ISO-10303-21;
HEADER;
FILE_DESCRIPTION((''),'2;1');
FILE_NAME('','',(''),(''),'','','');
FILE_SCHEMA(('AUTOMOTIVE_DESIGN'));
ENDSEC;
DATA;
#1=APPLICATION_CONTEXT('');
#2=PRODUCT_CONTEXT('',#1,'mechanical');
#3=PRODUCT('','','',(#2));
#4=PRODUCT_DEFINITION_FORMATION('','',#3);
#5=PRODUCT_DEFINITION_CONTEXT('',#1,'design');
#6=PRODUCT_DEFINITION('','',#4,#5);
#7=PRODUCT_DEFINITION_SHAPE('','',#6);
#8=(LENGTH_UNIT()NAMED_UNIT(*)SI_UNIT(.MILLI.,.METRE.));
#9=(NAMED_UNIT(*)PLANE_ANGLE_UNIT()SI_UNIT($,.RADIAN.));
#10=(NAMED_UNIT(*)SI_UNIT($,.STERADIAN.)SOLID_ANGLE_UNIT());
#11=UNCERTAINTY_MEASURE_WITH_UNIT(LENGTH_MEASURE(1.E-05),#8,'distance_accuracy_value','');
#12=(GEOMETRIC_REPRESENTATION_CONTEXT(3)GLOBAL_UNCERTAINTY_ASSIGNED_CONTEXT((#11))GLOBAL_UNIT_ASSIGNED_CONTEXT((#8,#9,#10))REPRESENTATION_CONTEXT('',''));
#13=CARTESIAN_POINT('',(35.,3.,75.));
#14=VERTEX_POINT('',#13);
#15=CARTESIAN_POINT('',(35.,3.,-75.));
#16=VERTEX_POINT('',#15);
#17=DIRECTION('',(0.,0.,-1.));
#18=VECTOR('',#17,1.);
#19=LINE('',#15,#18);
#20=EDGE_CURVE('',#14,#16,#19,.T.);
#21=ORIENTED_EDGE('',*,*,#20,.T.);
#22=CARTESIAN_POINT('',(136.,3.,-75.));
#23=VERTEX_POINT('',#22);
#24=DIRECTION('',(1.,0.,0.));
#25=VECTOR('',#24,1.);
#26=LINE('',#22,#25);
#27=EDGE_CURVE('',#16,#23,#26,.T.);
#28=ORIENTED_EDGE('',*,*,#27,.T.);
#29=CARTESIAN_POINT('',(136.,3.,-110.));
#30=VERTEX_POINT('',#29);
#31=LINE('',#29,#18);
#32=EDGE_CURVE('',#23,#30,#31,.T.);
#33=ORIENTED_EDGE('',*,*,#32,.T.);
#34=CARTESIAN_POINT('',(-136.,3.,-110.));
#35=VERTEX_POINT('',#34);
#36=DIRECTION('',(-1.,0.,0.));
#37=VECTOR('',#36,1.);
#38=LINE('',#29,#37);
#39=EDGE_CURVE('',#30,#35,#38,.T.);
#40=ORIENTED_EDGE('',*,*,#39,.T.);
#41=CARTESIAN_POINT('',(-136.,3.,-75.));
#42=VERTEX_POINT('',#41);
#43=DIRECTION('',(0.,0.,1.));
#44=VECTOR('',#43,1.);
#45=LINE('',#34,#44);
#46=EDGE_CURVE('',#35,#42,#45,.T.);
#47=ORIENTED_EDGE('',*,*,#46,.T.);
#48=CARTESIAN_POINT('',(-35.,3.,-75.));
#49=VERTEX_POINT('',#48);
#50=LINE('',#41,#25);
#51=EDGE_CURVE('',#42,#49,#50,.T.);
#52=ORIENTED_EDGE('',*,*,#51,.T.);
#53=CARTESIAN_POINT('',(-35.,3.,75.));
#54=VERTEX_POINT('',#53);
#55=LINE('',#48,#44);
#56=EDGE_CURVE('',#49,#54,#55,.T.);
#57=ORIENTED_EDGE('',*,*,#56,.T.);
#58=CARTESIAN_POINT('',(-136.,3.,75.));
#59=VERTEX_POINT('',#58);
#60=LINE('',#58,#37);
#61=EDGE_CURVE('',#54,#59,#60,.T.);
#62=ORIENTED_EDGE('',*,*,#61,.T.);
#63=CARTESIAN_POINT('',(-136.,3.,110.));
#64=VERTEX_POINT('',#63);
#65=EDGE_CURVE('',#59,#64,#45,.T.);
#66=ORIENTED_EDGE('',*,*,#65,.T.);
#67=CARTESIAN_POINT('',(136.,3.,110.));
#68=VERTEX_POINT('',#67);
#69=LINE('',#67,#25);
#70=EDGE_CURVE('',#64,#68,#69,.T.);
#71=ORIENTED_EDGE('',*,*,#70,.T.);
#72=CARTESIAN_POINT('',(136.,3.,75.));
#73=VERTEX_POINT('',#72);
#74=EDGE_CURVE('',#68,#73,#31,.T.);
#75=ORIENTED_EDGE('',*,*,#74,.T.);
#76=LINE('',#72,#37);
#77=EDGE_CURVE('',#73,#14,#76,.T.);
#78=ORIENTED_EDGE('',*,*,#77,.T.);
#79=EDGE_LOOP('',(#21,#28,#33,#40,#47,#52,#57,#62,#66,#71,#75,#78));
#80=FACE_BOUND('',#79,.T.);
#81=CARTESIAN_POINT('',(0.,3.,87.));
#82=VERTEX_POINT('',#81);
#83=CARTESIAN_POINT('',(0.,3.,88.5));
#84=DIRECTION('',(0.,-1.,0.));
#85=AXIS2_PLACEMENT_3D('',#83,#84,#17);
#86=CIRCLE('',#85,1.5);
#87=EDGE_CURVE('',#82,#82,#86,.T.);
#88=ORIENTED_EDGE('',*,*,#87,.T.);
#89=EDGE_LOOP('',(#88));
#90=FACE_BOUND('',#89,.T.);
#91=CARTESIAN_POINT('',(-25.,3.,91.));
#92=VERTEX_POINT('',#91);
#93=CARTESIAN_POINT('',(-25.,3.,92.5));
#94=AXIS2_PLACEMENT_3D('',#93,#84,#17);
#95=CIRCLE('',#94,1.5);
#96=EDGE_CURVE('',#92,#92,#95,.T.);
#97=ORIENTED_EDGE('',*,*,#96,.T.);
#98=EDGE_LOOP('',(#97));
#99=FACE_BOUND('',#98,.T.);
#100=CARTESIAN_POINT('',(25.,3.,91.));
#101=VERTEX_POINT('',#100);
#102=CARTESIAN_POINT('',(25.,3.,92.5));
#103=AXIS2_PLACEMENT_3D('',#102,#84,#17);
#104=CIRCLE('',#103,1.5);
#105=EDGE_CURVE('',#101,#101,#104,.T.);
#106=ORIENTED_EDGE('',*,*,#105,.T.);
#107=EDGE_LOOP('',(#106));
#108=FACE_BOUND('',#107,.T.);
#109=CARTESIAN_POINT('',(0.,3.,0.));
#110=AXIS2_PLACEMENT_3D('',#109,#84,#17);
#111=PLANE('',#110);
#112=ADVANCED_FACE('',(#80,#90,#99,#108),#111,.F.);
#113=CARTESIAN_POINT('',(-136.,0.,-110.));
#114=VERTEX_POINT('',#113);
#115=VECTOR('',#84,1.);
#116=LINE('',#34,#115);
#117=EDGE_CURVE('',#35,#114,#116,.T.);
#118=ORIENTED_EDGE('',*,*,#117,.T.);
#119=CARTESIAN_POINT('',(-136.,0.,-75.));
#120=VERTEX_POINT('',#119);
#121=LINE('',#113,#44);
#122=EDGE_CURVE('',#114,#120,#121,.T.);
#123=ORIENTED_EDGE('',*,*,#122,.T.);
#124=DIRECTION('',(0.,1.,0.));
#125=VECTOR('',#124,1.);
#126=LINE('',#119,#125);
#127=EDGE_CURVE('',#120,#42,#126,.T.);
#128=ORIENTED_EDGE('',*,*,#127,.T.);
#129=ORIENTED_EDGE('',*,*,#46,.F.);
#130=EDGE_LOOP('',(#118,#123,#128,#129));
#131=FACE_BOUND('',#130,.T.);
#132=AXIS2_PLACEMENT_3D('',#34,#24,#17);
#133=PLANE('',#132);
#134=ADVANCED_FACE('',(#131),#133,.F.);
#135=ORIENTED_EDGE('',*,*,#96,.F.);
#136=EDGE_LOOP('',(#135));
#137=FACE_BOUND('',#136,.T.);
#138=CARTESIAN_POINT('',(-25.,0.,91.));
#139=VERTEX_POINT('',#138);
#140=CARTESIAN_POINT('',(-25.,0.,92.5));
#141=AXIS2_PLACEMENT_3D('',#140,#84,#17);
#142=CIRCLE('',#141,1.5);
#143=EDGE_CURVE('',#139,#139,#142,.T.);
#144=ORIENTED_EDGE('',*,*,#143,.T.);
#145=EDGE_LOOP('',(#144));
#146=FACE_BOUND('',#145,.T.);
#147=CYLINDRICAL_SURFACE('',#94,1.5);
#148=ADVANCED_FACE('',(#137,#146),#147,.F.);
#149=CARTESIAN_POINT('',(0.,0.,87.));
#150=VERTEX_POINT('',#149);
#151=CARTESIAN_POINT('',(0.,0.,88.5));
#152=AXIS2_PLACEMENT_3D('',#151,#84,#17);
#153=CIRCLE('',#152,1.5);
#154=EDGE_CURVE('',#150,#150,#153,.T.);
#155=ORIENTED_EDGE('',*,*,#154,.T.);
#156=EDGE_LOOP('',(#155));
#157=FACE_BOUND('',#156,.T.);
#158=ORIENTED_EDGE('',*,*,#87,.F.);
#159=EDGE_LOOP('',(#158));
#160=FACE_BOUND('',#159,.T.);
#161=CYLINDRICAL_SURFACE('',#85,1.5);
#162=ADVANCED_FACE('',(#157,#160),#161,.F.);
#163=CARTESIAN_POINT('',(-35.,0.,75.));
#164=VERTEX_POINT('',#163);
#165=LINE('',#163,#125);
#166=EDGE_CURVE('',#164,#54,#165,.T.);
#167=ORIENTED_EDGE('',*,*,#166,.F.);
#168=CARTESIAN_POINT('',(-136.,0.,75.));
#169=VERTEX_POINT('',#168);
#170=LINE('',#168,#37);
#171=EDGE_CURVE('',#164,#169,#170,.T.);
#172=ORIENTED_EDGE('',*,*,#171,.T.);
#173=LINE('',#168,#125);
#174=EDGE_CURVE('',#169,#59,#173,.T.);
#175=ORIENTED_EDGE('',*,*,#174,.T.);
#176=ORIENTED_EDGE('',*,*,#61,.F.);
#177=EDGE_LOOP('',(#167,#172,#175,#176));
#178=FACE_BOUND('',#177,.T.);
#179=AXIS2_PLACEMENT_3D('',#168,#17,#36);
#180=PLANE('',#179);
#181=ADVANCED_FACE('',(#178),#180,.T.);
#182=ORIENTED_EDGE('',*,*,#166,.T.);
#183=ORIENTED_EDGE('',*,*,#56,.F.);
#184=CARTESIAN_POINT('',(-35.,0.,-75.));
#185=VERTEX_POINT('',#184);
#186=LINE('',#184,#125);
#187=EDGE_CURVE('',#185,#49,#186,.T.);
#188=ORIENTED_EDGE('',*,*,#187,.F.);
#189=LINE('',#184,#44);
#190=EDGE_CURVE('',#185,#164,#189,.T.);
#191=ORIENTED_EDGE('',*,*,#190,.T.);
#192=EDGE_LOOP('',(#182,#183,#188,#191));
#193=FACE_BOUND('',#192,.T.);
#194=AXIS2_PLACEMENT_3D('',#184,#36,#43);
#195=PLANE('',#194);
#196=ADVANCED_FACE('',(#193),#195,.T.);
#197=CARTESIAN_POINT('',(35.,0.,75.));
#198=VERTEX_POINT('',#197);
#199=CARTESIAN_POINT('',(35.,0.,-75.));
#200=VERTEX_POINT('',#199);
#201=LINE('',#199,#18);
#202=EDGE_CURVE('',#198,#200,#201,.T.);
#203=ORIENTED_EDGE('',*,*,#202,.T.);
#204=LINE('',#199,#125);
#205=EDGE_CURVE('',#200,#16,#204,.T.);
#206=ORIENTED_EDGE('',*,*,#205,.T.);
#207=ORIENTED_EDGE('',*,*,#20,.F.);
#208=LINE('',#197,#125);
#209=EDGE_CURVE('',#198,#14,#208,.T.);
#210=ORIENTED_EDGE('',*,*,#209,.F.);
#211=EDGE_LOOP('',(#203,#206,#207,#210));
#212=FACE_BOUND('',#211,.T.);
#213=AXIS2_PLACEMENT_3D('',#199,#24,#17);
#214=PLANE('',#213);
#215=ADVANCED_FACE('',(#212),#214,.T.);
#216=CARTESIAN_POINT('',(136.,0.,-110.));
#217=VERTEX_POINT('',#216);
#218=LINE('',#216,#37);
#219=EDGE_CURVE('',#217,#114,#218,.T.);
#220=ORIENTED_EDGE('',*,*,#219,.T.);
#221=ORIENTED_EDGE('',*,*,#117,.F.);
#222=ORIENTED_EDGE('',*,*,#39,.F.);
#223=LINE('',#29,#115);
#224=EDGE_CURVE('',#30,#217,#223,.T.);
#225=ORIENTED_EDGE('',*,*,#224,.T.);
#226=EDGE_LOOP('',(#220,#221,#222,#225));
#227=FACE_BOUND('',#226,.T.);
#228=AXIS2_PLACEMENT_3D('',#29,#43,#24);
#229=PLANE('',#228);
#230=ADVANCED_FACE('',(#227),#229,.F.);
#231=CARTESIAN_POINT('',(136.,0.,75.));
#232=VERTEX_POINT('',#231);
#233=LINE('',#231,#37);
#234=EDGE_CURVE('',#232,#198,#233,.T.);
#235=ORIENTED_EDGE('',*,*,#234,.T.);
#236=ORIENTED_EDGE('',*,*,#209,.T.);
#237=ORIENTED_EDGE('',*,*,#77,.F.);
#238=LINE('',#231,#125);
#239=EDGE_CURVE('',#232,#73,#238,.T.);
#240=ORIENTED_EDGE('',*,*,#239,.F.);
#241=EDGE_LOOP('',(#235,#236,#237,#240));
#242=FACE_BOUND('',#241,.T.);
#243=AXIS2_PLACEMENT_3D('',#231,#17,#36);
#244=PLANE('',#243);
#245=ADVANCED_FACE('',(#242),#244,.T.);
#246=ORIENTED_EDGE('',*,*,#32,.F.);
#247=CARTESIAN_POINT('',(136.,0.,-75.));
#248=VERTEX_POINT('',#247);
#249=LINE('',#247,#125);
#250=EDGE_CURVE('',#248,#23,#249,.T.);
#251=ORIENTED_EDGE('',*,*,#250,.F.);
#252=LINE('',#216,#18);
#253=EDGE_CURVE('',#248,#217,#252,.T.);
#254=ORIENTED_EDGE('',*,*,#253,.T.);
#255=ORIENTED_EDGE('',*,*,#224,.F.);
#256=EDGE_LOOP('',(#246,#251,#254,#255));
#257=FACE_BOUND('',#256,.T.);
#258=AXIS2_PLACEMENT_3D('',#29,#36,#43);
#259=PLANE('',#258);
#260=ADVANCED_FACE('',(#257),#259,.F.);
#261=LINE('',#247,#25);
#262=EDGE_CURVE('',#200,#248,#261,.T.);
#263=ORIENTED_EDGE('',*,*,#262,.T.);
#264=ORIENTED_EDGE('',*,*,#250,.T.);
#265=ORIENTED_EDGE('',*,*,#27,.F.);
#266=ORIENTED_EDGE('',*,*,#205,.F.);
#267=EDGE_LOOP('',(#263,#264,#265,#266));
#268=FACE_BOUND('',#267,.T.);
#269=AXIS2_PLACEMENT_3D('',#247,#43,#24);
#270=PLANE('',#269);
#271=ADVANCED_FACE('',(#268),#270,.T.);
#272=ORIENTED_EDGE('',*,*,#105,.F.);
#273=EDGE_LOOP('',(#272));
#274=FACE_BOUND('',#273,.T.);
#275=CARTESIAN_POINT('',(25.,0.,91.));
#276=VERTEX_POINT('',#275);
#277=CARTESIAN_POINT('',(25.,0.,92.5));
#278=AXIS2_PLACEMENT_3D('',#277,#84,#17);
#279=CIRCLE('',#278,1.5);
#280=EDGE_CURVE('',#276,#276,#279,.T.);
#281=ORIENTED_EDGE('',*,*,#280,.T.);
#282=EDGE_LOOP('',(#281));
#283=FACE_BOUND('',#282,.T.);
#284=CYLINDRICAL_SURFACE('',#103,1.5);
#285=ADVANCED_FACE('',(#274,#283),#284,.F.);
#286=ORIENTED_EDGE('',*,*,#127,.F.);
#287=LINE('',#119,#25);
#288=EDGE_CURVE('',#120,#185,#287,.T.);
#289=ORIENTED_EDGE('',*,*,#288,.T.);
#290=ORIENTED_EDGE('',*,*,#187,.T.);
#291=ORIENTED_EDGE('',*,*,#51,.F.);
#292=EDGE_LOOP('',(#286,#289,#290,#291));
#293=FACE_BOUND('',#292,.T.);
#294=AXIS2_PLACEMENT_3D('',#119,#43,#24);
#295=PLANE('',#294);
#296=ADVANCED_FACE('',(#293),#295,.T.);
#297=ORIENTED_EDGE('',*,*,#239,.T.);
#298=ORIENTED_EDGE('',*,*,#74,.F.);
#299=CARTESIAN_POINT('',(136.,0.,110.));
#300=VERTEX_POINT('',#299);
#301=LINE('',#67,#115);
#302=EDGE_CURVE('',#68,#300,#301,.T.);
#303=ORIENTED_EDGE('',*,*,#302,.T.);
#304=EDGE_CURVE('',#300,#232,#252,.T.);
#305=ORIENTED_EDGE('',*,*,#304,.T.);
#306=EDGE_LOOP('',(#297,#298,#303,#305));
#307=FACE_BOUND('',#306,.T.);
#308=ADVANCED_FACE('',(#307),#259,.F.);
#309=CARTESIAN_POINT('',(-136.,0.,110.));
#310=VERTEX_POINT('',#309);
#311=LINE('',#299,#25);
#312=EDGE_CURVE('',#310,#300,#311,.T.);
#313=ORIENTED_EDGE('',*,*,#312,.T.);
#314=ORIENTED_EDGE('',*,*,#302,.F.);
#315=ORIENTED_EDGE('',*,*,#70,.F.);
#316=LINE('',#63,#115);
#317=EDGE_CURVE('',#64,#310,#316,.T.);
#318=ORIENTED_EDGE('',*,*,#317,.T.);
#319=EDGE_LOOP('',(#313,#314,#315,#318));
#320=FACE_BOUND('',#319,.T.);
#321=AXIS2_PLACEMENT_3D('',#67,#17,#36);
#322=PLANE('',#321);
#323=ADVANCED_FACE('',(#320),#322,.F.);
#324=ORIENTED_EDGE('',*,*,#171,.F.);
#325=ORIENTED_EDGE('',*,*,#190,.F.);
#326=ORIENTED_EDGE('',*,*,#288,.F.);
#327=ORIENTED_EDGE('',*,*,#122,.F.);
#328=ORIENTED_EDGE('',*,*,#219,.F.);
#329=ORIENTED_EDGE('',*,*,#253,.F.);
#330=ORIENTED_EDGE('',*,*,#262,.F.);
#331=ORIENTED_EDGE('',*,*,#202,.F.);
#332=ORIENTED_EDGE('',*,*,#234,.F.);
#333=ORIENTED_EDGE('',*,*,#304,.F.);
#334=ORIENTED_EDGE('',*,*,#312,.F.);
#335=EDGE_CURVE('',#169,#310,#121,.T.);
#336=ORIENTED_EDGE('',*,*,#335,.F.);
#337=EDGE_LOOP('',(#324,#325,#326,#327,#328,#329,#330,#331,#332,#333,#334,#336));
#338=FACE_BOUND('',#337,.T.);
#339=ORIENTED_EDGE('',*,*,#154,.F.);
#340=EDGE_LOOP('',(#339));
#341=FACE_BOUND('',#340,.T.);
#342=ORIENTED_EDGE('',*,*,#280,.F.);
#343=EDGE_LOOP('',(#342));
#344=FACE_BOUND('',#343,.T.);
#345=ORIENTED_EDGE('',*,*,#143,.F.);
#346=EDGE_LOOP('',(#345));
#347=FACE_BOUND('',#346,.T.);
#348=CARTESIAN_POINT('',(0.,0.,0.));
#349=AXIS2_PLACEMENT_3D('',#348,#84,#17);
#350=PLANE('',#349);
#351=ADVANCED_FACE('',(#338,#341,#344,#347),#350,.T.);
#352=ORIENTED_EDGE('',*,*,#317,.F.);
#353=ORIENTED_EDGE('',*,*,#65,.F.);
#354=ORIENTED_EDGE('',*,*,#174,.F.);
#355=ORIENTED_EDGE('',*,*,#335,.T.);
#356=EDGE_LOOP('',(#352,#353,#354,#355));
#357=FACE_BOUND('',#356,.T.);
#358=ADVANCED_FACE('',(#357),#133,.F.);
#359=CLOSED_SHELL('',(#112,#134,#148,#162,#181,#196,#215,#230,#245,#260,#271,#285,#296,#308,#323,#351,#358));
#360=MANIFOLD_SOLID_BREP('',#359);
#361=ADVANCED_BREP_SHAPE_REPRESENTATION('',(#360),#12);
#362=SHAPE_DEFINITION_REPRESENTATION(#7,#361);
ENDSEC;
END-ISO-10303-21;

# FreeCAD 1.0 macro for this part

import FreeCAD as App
import Part
import Sketcher
from FreeCAD import Vector
Q = App.Units.Quantity

doc = App.newDocument("Part")
body = doc.addObject("PartDesign::Body", "Body")

sketch1 = body.newObject("Sketcher::SketchObject", "Sketch")
sketch1.AttachmentSupport = (doc.getObject("XZ_Plane"), [""])
sketch1.MapMode = "FlatFace"
sketch1.addGeometry(Part.LineSegment(Vector(-136, -110, 0), Vector(-136, 110, 0)), False)
sketch1.addGeometry(Part.LineSegment(Vector(-136, 110, 0), Vector(136, 110, 0)), False)
sketch1.addGeometry(Part.LineSegment(Vector(136, 110, 0), Vector(136, -110, 0)), False)
sketch1.addGeometry(Part.LineSegment(Vector(136, -110, 0), Vector(-136, -110, 0)), False)
sketch1.addConstraint(Sketcher.Constraint("Coincident", 0, 2, 1, 1))
sketch1.addConstraint(Sketcher.Constraint("Coincident", 1, 2, 2, 1))
sketch1.addConstraint(Sketcher.Constraint("Coincident", 2, 2, 3, 1))
sketch1.addConstraint(Sketcher.Constraint("Coincident", 3, 2, 0, 1))
sketch1.addConstraint(Sketcher.Constraint("Vertical", 0))
sketch1.addConstraint(Sketcher.Constraint("Horizontal", 1))
sketch1.addConstraint(Sketcher.Constraint("Vertical", 2))
sketch1.addConstraint(Sketcher.Constraint("Horizontal", 3))
sketch1.addConstraint(Sketcher.Constraint("Symmetric", 0, 2, 2, 2, -1, 1))
sketch1.addConstraint(Sketcher.Constraint("DistanceX", 1, 1, 1, 2, Q("272 mm")))
sketch1.addConstraint(Sketcher.Constraint("DistanceY", 0, 1, 0, 2, Q("220 mm")))
pad1 = body.newObject("PartDesign::Pad", "Pad")
pad1.Profile = sketch1
pad1.Length = 3
pad1.Reversed = True

sketch2 = body.newObject("Sketcher::SketchObject", "Sketch001")
sketch2.AttachmentSupport = (doc.getObject("XZ_Plane"), [""])
sketch2.MapMode = "FlatFace"
sketch2.AttachmentOffset = App.Placement(Vector(0, 0, -3), App.Rotation())
sketch2.addGeometry(Part.LineSegment(Vector(-172, -146, 0), Vector(-172, 146, 0)), False)
sketch2.addGeometry(Part.LineSegment(Vector(-172, 146, 0), Vector(172, 146, 0)), False)
sketch2.addGeometry(Part.LineSegment(Vector(172, 146, 0), Vector(172, -146, 0)), False)
sketch2.addGeometry(Part.LineSegment(Vector(172, -146, 0), Vector(-172, -146, 0)), False)
sketch2.addGeometry(Part.LineSegment(Vector(-136, -75, 0), Vector(-136, -110, 0)), False)
sketch2.addGeometry(Part.LineSegment(Vector(-136, -110, 0), Vector(136, -110, 0)), False)
sketch2.addGeometry(Part.LineSegment(Vector(136, -110, 0), Vector(136, -75, 0)), False)
sketch2.addGeometry(Part.LineSegment(Vector(136, -75, 0), Vector(35, -75, 0)), False)
sketch2.addGeometry(Part.LineSegment(Vector(35, -75, 0), Vector(35, 75, 0)), False)
sketch2.addGeometry(Part.LineSegment(Vector(35, 75, 0), Vector(136, 75, 0)), False)
sketch2.addGeometry(Part.LineSegment(Vector(136, 75, 0), Vector(136, 110, 0)), False)
sketch2.addGeometry(Part.LineSegment(Vector(136, 110, 0), Vector(-136, 110, 0)), False)
sketch2.addGeometry(Part.LineSegment(Vector(-136, 110, 0), Vector(-136, 75, 0)), False)
sketch2.addGeometry(Part.LineSegment(Vector(-136, 75, 0), Vector(-35, 75, 0)), False)
sketch2.addGeometry(Part.LineSegment(Vector(-35, 75, 0), Vector(-35, -75, 0)), False)
sketch2.addGeometry(Part.LineSegment(Vector(-35, -75, 0), Vector(-136, -75, 0)), False)
sketch2.addConstraint(Sketcher.Constraint("Coincident", 0, 2, 1, 1))
sketch2.addConstraint(Sketcher.Constraint("Coincident", 1, 2, 2, 1))
sketch2.addConstraint(Sketcher.Constraint("Coincident", 2, 2, 3, 1))
sketch2.addConstraint(Sketcher.Constraint("Coincident", 3, 2, 0, 1))
sketch2.addConstraint(Sketcher.Constraint("Coincident", 4, 2, 5, 1))
sketch2.addConstraint(Sketcher.Constraint("Coincident", 5, 2, 6, 1))
sketch2.addConstraint(Sketcher.Constraint("Coincident", 6, 2, 7, 1))
sketch2.addConstraint(Sketcher.Constraint("Coincident", 7, 2, 8, 1))
sketch2.addConstraint(Sketcher.Constraint("Coincident", 8, 2, 9, 1))
sketch2.addConstraint(Sketcher.Constraint("Coincident", 9, 2, 10, 1))
sketch2.addConstraint(Sketcher.Constraint("Coincident", 10, 2, 11, 1))
sketch2.addConstraint(Sketcher.Constraint("Coincident", 11, 2, 12, 1))
sketch2.addConstraint(Sketcher.Constraint("Coincident", 12, 2, 13, 1))
sketch2.addConstraint(Sketcher.Constraint("Coincident", 13, 2, 14, 1))
sketch2.addConstraint(Sketcher.Constraint("Coincident", 14, 2, 15, 1))
sketch2.addConstraint(Sketcher.Constraint("Coincident", 15, 2, 4, 1))
sketch2.addConstraint(Sketcher.Constraint("Vertical", 0))
sketch2.addConstraint(Sketcher.Constraint("Horizontal", 1))
sketch2.addConstraint(Sketcher.Constraint("Vertical", 2))
sketch2.addConstraint(Sketcher.Constraint("Horizontal", 3))
sketch2.addConstraint(Sketcher.Constraint("Vertical", 4))
sketch2.addConstraint(Sketcher.Constraint("Horizontal", 5))
sketch2.addConstraint(Sketcher.Constraint("Vertical", 6))
sketch2.addConstraint(Sketcher.Constraint("Horizontal", 7))
sketch2.addConstraint(Sketcher.Constraint("Vertical", 8))
sketch2.addConstraint(Sketcher.Constraint("Horizontal", 9))
sketch2.addConstraint(Sketcher.Constraint("Vertical", 10))
sketch2.addConstraint(Sketcher.Constraint("Horizontal", 11))
sketch2.addConstraint(Sketcher.Constraint("Vertical", 12))
sketch2.addConstraint(Sketcher.Constraint("Horizontal", 13))
sketch2.addConstraint(Sketcher.Constraint("Vertical", 14))
sketch2.addConstraint(Sketcher.Constraint("Horizontal", 15))
sketch2.addConstraint(Sketcher.Constraint("Symmetric", 0, 2, 2, 2, -1, 1))
sketch2.addConstraint(Sketcher.Constraint("Symmetric", 4, 2, 10, 2, -1, 1))
sketch2.addConstraint(Sketcher.Constraint("Symmetric", 6, 2, 12, 2, -1, 1))
sketch2.addConstraint(Sketcher.Constraint("Symmetric", 8, 2, 14, 2, -1, 1))
sketch2.addConstraint(Sketcher.Constraint("Symmetric", 9, 2, 12, 2, -2))
sketch2.addConstraint(Sketcher.Constraint("DistanceX", 5, 1, 5, 2, Q("272 mm")))
sketch2.addConstraint(Sketcher.Constraint("DistanceX", 7, 2, 7, 1, Q("101 mm")))
sketch2.addConstraint(Sketcher.Constraint("DistanceY", 4, 2, 4, 1, Q("35 mm")))
sketch2.addConstraint(Sketcher.Constraint("DistanceY", 8, 1, 8, 2, Q("150 mm")))
sketch2.addConstraint(Sketcher.Constraint("DistanceX", 1, 1, 1, 2, Q("343.97 mm")))
sketch2.addConstraint(Sketcher.Constraint("DistanceY", 0, 1, 0, 2, Q("291.97 mm")))
pocket1 = body.newObject("PartDesign::Pocket", "Pocket")
pocket1.Profile = sketch2
pocket1.Type = "ThroughAll"
pocket1.Reversed = True

sketch3 = body.newObject("Sketcher::SketchObject", "Sketch002")
sketch3.AttachmentSupport = (doc.getObject("XZ_Plane"), [""])
sketch3.MapMode = "FlatFace"
sketch3.addGeometry(Part.Circle(Vector(25, 92.5, 0), Vector(0, 0, 1), 1.5), False)
sketch3.addGeometry(Part.Circle(Vector(-25, 92.5, 0), Vector(0, 0, 1), 1.5), False)
sketch3.addConstraint(Sketcher.Constraint("Equal", 0, 1))
sketch3.addConstraint(Sketcher.Constraint("Symmetric", 0, 3, 1, 3, -2))
sketch3.addConstraint(Sketcher.Constraint("Diameter", 0, Q("3 mm")))
sketch3.addConstraint(Sketcher.Constraint("DistanceX", -1, 1, 0, 3, Q("25 mm")))
sketch3.addConstraint(Sketcher.Constraint("DistanceY", -1, 1, 0, 3, Q("92.5 mm")))
pocket2 = body.newObject("PartDesign::Pocket", "Pocket001")
pocket2.Profile = sketch3
pocket2.Type = "ThroughAll"

sketch4 = body.newObject("Sketcher::SketchObject", "Sketch003")
sketch4.AttachmentSupport = (doc.getObject("XZ_Plane"), [""])
sketch4.MapMode = "FlatFace"
sketch4.addGeometry(Part.Circle(Vector(0, 88.5, 0), Vector(0, 0, 1), 1.5), False)
sketch4.addConstraint(Sketcher.Constraint("PointOnObject", 0, 3, -2))
sketch4.addConstraint(Sketcher.Constraint("Diameter", 0, Q("3 mm")))
sketch4.addConstraint(Sketcher.Constraint("DistanceY", -1, 1, 0, 3, Q("88.5 mm")))
pocket3 = body.newObject("PartDesign::Pocket", "Pocket002")
pocket3.Profile = sketch4
pocket3.Type = "ThroughAll"

doc.recompute()
